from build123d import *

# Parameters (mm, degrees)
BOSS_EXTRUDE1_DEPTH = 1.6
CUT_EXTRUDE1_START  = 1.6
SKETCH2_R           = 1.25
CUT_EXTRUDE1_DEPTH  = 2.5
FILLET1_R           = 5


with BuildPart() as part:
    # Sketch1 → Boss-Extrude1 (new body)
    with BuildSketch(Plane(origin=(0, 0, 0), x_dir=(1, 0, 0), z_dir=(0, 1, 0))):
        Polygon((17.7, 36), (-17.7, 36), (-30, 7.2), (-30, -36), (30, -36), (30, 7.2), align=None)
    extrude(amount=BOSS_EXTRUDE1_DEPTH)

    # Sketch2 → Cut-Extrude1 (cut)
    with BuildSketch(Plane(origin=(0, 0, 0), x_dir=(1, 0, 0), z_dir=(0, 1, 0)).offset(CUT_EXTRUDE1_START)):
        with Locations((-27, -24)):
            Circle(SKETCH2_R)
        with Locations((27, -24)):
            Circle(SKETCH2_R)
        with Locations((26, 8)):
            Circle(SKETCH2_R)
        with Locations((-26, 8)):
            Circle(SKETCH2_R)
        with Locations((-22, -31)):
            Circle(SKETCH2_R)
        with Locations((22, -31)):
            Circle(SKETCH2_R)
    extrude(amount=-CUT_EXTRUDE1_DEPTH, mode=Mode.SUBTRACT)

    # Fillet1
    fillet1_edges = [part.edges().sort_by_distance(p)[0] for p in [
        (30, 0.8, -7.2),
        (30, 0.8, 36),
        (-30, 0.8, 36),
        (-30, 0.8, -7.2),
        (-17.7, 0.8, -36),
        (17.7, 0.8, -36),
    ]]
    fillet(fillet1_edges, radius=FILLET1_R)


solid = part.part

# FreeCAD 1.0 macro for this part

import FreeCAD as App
import Part
import Sketcher
Q = App.Units.Quantity


def edges_at(feature, points):
    """Names of the edges that pass closest to the given points."""
    edges = feature.Shape.Edges
    near = lambda p: min(range(len(edges)), key=lambda i: edges[i].distToShape(Part.Vertex(*p))[0])
    return sorted({f"Edge{near(p) + 1}" for p in points})


def add_polygon(sketch, points):
    """Adds a closed chain of lines whose ends are joined by coincident constraints."""
    first, n = sketch.GeometryCount, len(points)
    for a, b in zip(points, points[1:] + points[:1]):
        sketch.addGeometry(Part.LineSegment(App.Vector(*a, 0), App.Vector(*b, 0)), False)
    for i in range(n):
        sketch.addConstraint(Sketcher.Constraint("Coincident", first + i, 2, first + (i + 1) % n, 1))

doc = App.newDocument("Part")
body = doc.addObject("PartDesign::Body", "Body")

# Sketch on XZ plane
sketch1 = doc.addObject("Sketcher::SketchObject", "Sketch")
body.addObject(sketch1)
sketch1.AttachmentSupport = (doc.XZ_Plane, [""])
sketch1.MapMode = "FlatFace"
add_polygon(sketch1, [(18, -36), (-18, -36), (-30, -7), (-30, 36), (30, 36), (30, -7)])  # lines 0-5
sketch1.addConstraint(Sketcher.Constraint("Horizontal", 0))
sketch1.addConstraint(Sketcher.Constraint("Vertical", 2))
sketch1.addConstraint(Sketcher.Constraint("Horizontal", 3))
sketch1.addConstraint(Sketcher.Constraint("Vertical", 4))
sketch1.addConstraint(Sketcher.Constraint("Symmetric", 1, 2, 4, 2, -2))
sketch1.addConstraint(Sketcher.Constraint("Equal", 1, 5))
sketch1.addConstraint(Sketcher.Constraint("DistanceX", 3, 1, 3, 2, Q("60 mm")))
sketch1.addConstraint(Sketcher.Constraint("DistanceX", 0, 2, 0, 1, Q("35.4 mm")))
sketch1.addConstraint(Sketcher.Constraint("DistanceY", 2, 1, 2, 2, Q("43.2 mm")))
sketch1.addConstraint(Sketcher.Constraint("DistanceY", 0, 2, -1, 1, Q("36 mm")))
sketch1.addConstraint(Sketcher.Constraint("DistanceY", -1, 1, 2, 2, Q("36 mm")))
pad1 = doc.addObject("PartDesign::Pad", "Pad")
body.addObject(pad1)
pad1.Profile = sketch1
pad1.Length = 1.6
pad1.Reversed = True

# Sketch on XZ plane
sketch2 = doc.addObject("Sketcher::SketchObject", "Sketch001")
body.addObject(sketch2)
sketch2.AttachmentSupport = (doc.XZ_Plane, [""])
sketch2.MapMode = "FlatFace"
sketch2.AttachmentOffset = App.Placement(App.Vector(0, 0, -1.6), App.Rotation())
sketch2.addGeometry(Part.Circle(App.Vector(-27, 24, 0), App.Vector(0, 0, 1), 1.2), False)
sketch2.addGeometry(Part.Circle(App.Vector(27, 24, 0), App.Vector(0, 0, 1), 1.2), False)
sketch2.addGeometry(Part.Circle(App.Vector(26, -8, 0), App.Vector(0, 0, 1), 1.2), False)
sketch2.addGeometry(Part.Circle(App.Vector(-26, -8, 0), App.Vector(0, 0, 1), 1.2), False)
sketch2.addGeometry(Part.Circle(App.Vector(-22, 31, 0), App.Vector(0, 0, 1), 1.2), False)
sketch2.addGeometry(Part.Circle(App.Vector(22, 31, 0), App.Vector(0, 0, 1), 1.2), False)
sketch2.addConstraint(Sketcher.Constraint("Equal", 0, 1))
sketch2.addConstraint(Sketcher.Constraint("Equal", 1, 2))
sketch2.addConstraint(Sketcher.Constraint("Equal", 2, 3))
sketch2.addConstraint(Sketcher.Constraint("Equal", 3, 4))
sketch2.addConstraint(Sketcher.Constraint("Equal", 4, 5))
sketch2.addConstraint(Sketcher.Constraint("Symmetric", 0, 3, 1, 3, -2))
sketch2.addConstraint(Sketcher.Constraint("Symmetric", 2, 3, 3, 3, -2))
sketch2.addConstraint(Sketcher.Constraint("Symmetric", 4, 3, 5, 3, -2))
sketch2.addConstraint(Sketcher.Constraint("Diameter", 0, Q("2.5 mm")))
sketch2.addConstraint(Sketcher.Constraint("DistanceX", 0, 3, -1, 1, Q("27 mm")))
sketch2.addConstraint(Sketcher.Constraint("DistanceY", -1, 1, 0, 3, Q("24 mm")))
sketch2.addConstraint(Sketcher.Constraint("DistanceX", -1, 1, 2, 3, Q("26 mm")))
sketch2.addConstraint(Sketcher.Constraint("DistanceY", 2, 3, -1, 1, Q("8 mm")))
sketch2.addConstraint(Sketcher.Constraint("DistanceX", 4, 3, -1, 1, Q("22 mm")))
sketch2.addConstraint(Sketcher.Constraint("DistanceY", -1, 1, 4, 3, Q("31 mm")))
pocket1 = doc.addObject("PartDesign::Pocket", "Pocket")
body.addObject(pocket1)
pocket1.Profile = sketch2
pocket1.Length = 2.5
pocket1.Reversed = True
doc.recompute()

fillet = doc.addObject("PartDesign::Fillet", "Fillet")
body.addObject(fillet)
fillet.Base = (pocket1, edges_at(pocket1, [
    (30, 0.8, -7.2),
    (30, 0.8, 36),
    (-30, 0.8, 36),
    (-30, 0.8, -7.2),
    (-17.7, 0.8, -36),
    (17.7, 0.8, -36),
]))
fillet.Radius = 5

doc.recompute()
